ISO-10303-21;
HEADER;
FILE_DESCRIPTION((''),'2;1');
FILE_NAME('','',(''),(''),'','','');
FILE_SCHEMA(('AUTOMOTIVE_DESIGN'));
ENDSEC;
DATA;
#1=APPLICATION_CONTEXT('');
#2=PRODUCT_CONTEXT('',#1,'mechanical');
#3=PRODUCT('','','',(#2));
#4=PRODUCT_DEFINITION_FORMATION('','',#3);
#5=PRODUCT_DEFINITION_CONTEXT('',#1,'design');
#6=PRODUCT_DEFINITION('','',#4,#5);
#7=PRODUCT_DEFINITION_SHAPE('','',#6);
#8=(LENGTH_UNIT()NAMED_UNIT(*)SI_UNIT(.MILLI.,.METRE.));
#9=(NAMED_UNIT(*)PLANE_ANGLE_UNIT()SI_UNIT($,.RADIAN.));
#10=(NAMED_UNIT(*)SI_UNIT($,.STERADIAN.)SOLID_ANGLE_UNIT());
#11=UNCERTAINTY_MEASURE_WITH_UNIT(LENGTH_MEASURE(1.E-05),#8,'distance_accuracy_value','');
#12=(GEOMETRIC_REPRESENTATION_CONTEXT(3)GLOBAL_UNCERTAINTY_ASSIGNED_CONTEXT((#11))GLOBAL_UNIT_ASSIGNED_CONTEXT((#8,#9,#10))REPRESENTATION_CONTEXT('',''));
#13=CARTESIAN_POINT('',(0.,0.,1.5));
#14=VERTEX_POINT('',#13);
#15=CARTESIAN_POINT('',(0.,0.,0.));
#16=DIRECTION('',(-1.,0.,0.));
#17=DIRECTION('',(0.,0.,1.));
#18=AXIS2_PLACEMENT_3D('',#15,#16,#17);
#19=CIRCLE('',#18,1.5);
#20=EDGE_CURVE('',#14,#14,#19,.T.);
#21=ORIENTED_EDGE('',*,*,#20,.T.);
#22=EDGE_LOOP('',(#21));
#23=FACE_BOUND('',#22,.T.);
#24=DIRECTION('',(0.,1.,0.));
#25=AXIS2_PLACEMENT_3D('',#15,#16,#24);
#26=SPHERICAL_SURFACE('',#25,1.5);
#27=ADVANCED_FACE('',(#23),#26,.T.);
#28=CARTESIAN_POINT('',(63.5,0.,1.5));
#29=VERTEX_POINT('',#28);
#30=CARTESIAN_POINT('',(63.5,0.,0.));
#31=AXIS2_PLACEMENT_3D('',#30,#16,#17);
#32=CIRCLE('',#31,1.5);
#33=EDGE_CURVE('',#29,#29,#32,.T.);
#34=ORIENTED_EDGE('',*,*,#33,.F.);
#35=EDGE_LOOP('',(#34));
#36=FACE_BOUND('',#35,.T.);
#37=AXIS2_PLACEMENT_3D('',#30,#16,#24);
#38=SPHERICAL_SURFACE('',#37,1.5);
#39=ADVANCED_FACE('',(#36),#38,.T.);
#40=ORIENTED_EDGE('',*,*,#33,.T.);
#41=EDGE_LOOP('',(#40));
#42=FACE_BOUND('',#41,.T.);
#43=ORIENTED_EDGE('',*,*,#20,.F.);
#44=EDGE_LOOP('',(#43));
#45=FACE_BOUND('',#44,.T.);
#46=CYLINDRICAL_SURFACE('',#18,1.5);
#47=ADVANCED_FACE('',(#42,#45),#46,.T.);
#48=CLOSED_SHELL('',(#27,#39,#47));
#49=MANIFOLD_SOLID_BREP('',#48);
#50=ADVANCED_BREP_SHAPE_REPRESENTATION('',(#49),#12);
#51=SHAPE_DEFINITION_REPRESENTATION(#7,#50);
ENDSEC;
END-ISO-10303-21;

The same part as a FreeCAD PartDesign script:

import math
import FreeCAD as App
import Part
import Sketcher

V = App.Vector
Q = App.Units.Quantity

doc = App.newDocument("Part")
params = doc.addObject("Spreadsheet::Sheet", "Params")
for row, (alias, value) in enumerate([
    ("sketch1_radius", "1.5 mm"),
    ("sketch1_width", "63.5 mm"),
    ("revolution_angle", "360 deg"),
], start=1):
    params.set(f"A{row}", alias)
    params.set(f"B{row}", "=" + value)
    params.setAlias(f"B{row}", alias)

body = doc.addObject("PartDesign::Body", "Body")

# Sketch on XY plane
sketch1 = body.newObject("Sketcher::SketchObject", "Sketch")
sketch1.AttachmentSupport = (doc.getObject("XY_Plane"), [""])
sketch1.MapMode = "FlatFace"
sketch1.addGeometry([
    Part.LineSegment(V(63.5, 1.5, 0), V(0, 1.5, 0)),
    Part.ArcOfCircle(Part.Circle(V(0, 0, 0), V(0, 0, 1), 1.5), math.radians(90), math.radians(180)),
    Part.LineSegment(V(-1.5, 0, 0), V(65, 0, 0)),
    Part.ArcOfCircle(Part.Circle(V(63.5, 0, 0), V(0, 0, 1), 1.5), math.radians(0), math.radians(90)),
], False)
sketch1.addConstraint([
    Sketcher.Constraint("Tangent", 0, 2, 1, 1),
    Sketcher.Constraint("Coincident", 1, 2, 2, 1),
    Sketcher.Constraint("Coincident", 2, 2, 3, 1),
    Sketcher.Constraint("Tangent", 3, 2, 0, 1),
    Sketcher.Constraint("Horizontal", 0),
    Sketcher.Constraint("Horizontal", 2),
    Sketcher.Constraint("Coincident", 1, 3, -1, 1),
    Sketcher.Constraint("Equal", 1, 3),
    Sketcher.Constraint("PointOnObject", 1, 2, -1),
    Sketcher.Constraint("Radius", 1, Q("1.5 mm")),
    Sketcher.Constraint("DistanceX", 0, 2, 0, 1, Q("63.5 mm")),
])
sketch1.setExpression("Constraints[9]", "Params.sketch1_radius")
sketch1.setExpression("Constraints[10]", "Params.sketch1_width")
revolution = body.newObject("PartDesign::Revolution", "Revolution")
revolution.Profile = sketch1
revolution.ReferenceAxis = (sketch1, ["H_Axis"])
revolution.setExpression("Angle", "Params.revolution_angle")

doc.recompute()
